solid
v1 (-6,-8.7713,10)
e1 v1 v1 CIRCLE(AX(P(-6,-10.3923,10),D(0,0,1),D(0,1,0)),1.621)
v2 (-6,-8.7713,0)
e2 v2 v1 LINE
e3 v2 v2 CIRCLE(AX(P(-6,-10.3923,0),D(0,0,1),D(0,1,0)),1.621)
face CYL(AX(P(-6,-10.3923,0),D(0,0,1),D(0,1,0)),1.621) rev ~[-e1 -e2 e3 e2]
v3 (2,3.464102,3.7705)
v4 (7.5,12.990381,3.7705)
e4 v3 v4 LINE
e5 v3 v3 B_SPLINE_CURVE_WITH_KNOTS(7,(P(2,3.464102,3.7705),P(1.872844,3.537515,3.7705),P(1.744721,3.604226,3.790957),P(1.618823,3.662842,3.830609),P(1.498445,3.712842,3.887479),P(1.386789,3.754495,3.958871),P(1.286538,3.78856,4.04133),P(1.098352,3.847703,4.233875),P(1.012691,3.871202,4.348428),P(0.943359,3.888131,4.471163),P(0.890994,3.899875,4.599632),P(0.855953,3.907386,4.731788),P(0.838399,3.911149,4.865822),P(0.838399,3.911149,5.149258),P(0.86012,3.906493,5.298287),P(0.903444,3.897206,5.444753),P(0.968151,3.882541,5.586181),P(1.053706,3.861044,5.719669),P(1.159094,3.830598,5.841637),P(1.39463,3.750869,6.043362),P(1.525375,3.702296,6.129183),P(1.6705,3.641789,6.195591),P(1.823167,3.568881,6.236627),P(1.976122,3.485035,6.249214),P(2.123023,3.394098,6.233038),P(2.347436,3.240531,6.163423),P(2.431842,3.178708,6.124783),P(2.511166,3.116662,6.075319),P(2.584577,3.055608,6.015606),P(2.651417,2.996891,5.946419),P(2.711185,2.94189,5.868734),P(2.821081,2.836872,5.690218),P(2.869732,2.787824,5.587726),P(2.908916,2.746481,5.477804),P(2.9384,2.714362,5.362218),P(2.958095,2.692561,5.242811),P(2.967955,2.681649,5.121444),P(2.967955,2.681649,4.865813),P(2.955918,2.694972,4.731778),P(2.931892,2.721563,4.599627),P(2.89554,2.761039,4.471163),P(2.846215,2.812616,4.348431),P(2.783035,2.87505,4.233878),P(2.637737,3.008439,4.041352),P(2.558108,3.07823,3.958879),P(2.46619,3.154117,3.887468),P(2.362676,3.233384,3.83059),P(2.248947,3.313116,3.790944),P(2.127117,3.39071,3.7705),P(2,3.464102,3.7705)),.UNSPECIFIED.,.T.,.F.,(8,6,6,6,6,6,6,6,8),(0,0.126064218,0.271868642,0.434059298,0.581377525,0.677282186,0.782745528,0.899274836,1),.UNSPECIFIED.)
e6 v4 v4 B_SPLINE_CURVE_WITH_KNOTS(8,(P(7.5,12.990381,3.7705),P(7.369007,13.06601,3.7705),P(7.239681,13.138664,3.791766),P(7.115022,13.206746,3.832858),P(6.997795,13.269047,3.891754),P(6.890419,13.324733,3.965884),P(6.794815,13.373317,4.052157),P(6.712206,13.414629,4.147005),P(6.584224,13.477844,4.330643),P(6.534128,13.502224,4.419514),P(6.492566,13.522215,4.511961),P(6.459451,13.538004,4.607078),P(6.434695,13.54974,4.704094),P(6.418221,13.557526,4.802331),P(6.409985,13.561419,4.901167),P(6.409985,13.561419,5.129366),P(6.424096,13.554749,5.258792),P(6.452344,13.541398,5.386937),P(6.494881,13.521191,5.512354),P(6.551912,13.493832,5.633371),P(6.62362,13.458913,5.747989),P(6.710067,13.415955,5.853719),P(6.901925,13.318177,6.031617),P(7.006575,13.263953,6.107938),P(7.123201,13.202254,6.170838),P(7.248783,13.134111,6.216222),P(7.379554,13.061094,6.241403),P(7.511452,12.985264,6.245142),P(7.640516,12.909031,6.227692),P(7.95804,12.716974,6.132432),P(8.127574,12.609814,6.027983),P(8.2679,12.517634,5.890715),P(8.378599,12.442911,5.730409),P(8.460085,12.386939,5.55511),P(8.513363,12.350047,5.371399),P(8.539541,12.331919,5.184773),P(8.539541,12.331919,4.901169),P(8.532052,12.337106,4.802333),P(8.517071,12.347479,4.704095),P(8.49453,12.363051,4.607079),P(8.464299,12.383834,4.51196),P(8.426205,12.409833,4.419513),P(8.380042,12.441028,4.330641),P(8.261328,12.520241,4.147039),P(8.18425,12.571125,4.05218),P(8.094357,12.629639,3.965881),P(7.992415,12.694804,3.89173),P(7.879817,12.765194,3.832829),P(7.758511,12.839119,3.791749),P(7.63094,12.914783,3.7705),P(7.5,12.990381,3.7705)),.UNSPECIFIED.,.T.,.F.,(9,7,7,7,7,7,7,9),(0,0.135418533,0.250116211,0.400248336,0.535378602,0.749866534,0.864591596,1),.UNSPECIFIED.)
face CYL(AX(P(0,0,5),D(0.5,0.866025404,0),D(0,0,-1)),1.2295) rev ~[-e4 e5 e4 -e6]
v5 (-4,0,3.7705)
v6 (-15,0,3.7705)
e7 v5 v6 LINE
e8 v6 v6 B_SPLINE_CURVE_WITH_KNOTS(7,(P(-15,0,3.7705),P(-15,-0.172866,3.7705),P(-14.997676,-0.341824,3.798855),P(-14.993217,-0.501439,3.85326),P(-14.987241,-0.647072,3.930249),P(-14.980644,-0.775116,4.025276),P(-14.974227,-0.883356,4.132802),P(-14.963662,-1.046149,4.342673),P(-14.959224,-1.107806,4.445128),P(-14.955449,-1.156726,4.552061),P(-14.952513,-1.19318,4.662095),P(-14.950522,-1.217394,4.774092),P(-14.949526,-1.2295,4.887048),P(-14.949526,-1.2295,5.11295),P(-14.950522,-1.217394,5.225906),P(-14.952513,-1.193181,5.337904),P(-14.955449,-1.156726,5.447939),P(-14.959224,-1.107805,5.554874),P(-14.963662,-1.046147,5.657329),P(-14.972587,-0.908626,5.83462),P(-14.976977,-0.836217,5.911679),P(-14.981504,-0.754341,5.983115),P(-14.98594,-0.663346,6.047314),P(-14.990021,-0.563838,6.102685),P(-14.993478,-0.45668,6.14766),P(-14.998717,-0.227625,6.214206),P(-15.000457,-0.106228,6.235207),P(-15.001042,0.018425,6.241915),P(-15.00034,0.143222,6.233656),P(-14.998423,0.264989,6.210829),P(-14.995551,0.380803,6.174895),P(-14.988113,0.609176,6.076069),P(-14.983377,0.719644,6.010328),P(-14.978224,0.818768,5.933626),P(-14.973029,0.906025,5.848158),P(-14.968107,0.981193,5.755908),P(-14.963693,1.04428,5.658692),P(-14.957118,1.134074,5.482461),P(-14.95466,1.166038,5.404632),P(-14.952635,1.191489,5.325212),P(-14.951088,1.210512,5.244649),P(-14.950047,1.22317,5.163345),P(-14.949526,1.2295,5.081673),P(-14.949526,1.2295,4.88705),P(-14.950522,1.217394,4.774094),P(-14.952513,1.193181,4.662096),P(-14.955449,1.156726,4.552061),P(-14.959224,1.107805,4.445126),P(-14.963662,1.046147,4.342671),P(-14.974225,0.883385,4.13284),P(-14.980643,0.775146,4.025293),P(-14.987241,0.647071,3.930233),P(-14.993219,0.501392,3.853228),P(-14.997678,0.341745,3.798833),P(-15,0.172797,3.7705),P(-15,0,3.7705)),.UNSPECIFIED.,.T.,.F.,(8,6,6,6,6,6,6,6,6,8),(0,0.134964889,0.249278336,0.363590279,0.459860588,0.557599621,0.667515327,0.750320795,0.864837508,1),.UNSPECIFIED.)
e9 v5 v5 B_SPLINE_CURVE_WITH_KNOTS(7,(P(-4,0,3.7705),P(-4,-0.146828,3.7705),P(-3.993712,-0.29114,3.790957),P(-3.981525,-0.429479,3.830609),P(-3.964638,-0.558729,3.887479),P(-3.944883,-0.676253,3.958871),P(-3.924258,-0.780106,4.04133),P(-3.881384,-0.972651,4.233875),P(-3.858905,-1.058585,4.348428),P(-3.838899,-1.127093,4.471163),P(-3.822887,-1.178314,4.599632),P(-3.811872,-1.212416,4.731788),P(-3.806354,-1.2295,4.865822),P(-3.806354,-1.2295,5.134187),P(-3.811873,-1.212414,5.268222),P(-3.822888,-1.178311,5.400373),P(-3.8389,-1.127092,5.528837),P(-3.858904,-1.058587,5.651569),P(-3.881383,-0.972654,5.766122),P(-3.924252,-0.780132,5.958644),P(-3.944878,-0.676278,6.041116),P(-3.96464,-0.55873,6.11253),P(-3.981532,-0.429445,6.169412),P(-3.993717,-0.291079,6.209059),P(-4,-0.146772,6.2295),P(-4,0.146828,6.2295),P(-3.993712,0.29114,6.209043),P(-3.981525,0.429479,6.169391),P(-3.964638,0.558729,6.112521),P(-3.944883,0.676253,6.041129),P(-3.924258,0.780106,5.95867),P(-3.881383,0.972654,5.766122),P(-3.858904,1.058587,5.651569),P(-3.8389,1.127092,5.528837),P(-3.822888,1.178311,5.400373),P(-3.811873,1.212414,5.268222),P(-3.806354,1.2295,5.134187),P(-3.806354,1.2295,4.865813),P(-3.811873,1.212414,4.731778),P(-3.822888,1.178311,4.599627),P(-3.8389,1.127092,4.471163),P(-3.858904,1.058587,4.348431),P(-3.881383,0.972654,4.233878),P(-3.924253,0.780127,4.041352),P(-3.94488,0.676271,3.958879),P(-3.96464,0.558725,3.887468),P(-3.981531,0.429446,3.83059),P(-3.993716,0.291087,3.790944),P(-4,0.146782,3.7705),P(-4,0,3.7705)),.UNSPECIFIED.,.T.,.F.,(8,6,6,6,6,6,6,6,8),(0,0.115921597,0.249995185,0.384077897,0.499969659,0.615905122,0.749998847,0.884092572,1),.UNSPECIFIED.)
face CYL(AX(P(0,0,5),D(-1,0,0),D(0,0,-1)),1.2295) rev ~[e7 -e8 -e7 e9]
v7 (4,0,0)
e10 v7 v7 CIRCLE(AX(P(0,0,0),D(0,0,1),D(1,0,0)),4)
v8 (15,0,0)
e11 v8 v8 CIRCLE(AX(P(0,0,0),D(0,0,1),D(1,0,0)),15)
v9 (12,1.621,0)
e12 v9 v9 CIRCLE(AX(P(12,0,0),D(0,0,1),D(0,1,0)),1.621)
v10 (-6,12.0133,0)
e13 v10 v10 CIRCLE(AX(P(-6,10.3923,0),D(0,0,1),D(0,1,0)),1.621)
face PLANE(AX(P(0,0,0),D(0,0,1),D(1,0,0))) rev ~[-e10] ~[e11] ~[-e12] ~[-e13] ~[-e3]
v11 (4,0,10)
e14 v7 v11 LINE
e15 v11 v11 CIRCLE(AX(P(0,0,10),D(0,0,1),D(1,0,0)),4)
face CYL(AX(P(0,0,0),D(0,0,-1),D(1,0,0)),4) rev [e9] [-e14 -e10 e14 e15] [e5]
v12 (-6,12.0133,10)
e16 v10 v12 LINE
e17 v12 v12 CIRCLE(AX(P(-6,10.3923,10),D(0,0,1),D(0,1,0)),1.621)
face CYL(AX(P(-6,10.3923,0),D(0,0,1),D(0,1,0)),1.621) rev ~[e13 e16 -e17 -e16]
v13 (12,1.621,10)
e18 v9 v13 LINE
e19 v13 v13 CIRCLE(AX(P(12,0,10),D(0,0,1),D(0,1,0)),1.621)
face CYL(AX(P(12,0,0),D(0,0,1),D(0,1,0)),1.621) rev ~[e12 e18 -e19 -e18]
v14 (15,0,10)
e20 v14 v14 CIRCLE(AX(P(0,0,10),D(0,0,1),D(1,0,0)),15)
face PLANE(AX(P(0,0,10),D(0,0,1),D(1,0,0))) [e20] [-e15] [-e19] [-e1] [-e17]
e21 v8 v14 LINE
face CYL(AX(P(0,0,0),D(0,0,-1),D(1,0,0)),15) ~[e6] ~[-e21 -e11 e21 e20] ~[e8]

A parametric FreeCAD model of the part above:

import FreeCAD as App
import Part
import Sketcher

doc = App.newDocument("Part")
body = doc.addObject("PartDesign::Body", "Body")

sketch1 = body.newObject("Sketcher::SketchObject", "Sketch")
sketch1.AttachmentSupport = (doc.getObject("XY_Plane"), [""])
sketch1.MapMode = "FlatFace"
sketch1.addGeometry([
    Part.Circle(App.Vector(0, 0, 0), App.Vector(0, 0, 1), 15),
    Part.Circle(App.Vector(0, 0, 0), App.Vector(0, 0, 1), 4),
], False)
sketch1.addConstraint([
    Sketcher.Constraint("Coincident", 0, 3, -1, 1),
    Sketcher.Constraint("Coincident", 1, 3, -1, 1),
    Sketcher.Constraint("Diameter", 0, 30.0),
    Sketcher.Constraint("Diameter", 1, 8.0),
])
pad1 = body.newObject("PartDesign::Pad", "Pad")
pad1.Profile = sketch1
pad1.Length = 10

sketch2 = body.newObject("Sketcher::SketchObject", "Sketch001")
sketch2.AttachmentSupport = (doc.getObject("XY_Plane"), [""])
sketch2.MapMode = "FlatFace"
sketch2.addGeometry([
    Part.Circle(App.Vector(12, 0, 0), App.Vector(0, 0, 1), 1.6),
    Part.Circle(App.Vector(-6, 10.4, 0), App.Vector(0, 0, 1), 1.6),
    Part.Circle(App.Vector(-6, -10.4, 0), App.Vector(0, 0, 1), 1.6),
], False)
sketch2.addConstraint([
    Sketcher.Constraint("Equal", 0, 1),
    Sketcher.Constraint("Equal", 1, 2),
    Sketcher.Constraint("Symmetric", 1, 3, 2, 3, -1),
    Sketcher.Constraint("PointOnObject", 0, 3, -1),
    Sketcher.Constraint("Diameter", 0, 3.242),
    Sketcher.Constraint("DistanceX", -1, 1, 0, 3, 12.0),
    Sketcher.Constraint("DistanceX", 1, 3, -1, 1, 6.0),
    Sketcher.Constraint("DistanceY", -1, 1, 1, 3, 10.3923),
])
doc.recompute()
hole = body.newObject("PartDesign::Hole", "Hole")
hole.Profile = sketch2
hole.ThreadType = "None"
hole.Diameter = 3.242
hole.DepthType = "Dimension"
hole.Depth = 15
hole.DrillPoint = "Angled"
hole.DrillPointAngle = 118
hole.Reversed = True

sketch3 = body.newObject("Sketcher::SketchObject", "Sketch002")
sketch3.AttachmentSupport = (doc.getObject("YZ_Plane"), [""])
sketch3.MapMode = "FlatFace"
sketch3.addGeometry(Part.Circle(App.Vector(0, 5, 0), App.Vector(0, 0, 1), 1.2), False)
sketch3.addConstraint([
    Sketcher.Constraint("PointOnObject", 0, 3, -2),
    Sketcher.Constraint("Diameter", 0, 2.459),
    Sketcher.Constraint("DistanceY", -1, 1, 0, 3, 5.0),
])
doc.recompute()
hole2 = body.newObject("PartDesign::Hole", "Hole001")
hole2.Profile = sketch3
hole2.ThreadType = "None"
hole2.Diameter = 2.459
hole2.DepthType = "ThroughAll"

sketch4 = body.newObject("Sketcher::SketchObject", "Sketch003")
sketch4.Placement = App.Placement(App.Vector(0, 0, 0), App.Rotation(App.Vector(0.866025404, -0.5, 0), App.Vector(0, 0, 1), App.Vector(-0.5, -0.866025404, 0), "ZXY"))
sketch4.addGeometry(Part.Circle(App.Vector(0, 5, 0), App.Vector(0, 0, 1), 1.2), False)
sketch4.addConstraint([
    Sketcher.Constraint("PointOnObject", 0, 3, -2),
    Sketcher.Constraint("Diameter", 0, 2.459),
    Sketcher.Constraint("DistanceY", -1, 1, 0, 3, 5.0),
])
doc.recompute()
hole3 = body.newObject("PartDesign::Hole", "Hole002")
hole3.Profile = sketch4
hole3.ThreadType = "None"
hole3.Diameter = 2.459
hole3.DepthType = "ThroughAll"

doc.recompute()
